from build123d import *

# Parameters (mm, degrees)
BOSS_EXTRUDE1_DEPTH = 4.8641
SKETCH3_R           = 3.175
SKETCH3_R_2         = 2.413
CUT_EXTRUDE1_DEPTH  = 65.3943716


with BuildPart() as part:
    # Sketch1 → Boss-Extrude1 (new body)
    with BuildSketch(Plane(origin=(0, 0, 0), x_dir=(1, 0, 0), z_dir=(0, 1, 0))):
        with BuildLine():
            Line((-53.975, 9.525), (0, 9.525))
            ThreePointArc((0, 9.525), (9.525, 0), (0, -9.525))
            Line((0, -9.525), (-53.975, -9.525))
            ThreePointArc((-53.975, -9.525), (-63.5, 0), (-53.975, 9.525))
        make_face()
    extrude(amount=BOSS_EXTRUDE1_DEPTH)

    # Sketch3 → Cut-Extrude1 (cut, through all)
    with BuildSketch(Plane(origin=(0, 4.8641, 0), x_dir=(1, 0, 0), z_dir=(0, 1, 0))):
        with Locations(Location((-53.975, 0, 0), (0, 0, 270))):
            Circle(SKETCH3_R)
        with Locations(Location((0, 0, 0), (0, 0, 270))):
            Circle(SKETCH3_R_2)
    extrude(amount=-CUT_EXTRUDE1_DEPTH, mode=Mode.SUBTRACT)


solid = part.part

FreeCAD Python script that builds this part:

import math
import FreeCAD as App
import Part
import Sketcher
Q = App.Units.Quantity

doc = App.newDocument("Part")
body = doc.addObject("PartDesign::Body", "Body")

# Sketch on XZ plane
sketch1 = body.newObject("Sketcher::SketchObject", "Sketch")
sketch1.AttachmentSupport = (doc.getObject("XZ_Plane"), [""])
sketch1.MapMode = "FlatFace"
sketch1.addGeometry([
    Part.LineSegment(App.Vector(0, -10, 0), App.Vector(-54, -10, 0)),
    Part.ArcOfCircle(Part.Circle(App.Vector(-54, 0, 0), App.Vector(0, 0, 1), 10), math.radians(90), math.radians(270)),
    Part.LineSegment(App.Vector(-54, 10, 0), App.Vector(0, 10, 0)),
    Part.ArcOfCircle(Part.Circle(App.Vector(0, 0, 0), App.Vector(0, 0, 1), 10), math.radians(-90), math.radians(90)),
], False)
sketch1.addConstraint([
    Sketcher.Constraint("Tangent", 0, 2, 1, 2),
    Sketcher.Constraint("Tangent", 1, 1, 2, 1),
    Sketcher.Constraint("Tangent", 2, 2, 3, 2),
    Sketcher.Constraint("Tangent", 3, 1, 0, 1),
    Sketcher.Constraint("Horizontal", 0),
    Sketcher.Constraint("Horizontal", 2),
    Sketcher.Constraint("Coincident", 3, 3, -1, 1),
    Sketcher.Constraint("Radius", 1, Q("0.375 in")),
    Sketcher.Constraint("DistanceX", 0, 2, 0, 1, Q("2.125 in")),
])
pad1 = body.newObject("PartDesign::Pad", "Pad")
pad1.Profile = sketch1
pad1.Length = Q("0.1915 in")
pad1.Reversed = True

# Sketch on XZ plane
sketch2 = body.newObject("Sketcher::SketchObject", "Sketch001")
sketch2.AttachmentSupport = (doc.getObject("XZ_Plane"), [""])
sketch2.MapMode = "FlatFace"
sketch2.AttachmentOffset = App.Placement(App.Vector(0, 0, -0.1915 * 25.4), App.Rotation())
sketch2.addGeometry([
    Part.Circle(App.Vector(-54, 0, 0), App.Vector(0, 0, 1), 3.2),
    Part.Circle(App.Vector(0, 0, 0), App.Vector(0, 0, 1), 2.4),
], False)
sketch2.addConstraint([
    Sketcher.Constraint("Coincident", 1, 3, -1, 1),
    Sketcher.Constraint("PointOnObject", 0, 3, -1),
    Sketcher.Constraint("Diameter", 0, Q("0.25 in")),
    Sketcher.Constraint("Diameter", 1, Q("0.19 in")),
    Sketcher.Constraint("DistanceX", 0, 3, -1, 1, Q("2.125 in")),
])
pocket1 = body.newObject("PartDesign::Pocket", "Pocket")
pocket1.Profile = sketch2
pocket1.Type = "ThroughAll"
pocket1.Reversed = True

doc.recompute()
